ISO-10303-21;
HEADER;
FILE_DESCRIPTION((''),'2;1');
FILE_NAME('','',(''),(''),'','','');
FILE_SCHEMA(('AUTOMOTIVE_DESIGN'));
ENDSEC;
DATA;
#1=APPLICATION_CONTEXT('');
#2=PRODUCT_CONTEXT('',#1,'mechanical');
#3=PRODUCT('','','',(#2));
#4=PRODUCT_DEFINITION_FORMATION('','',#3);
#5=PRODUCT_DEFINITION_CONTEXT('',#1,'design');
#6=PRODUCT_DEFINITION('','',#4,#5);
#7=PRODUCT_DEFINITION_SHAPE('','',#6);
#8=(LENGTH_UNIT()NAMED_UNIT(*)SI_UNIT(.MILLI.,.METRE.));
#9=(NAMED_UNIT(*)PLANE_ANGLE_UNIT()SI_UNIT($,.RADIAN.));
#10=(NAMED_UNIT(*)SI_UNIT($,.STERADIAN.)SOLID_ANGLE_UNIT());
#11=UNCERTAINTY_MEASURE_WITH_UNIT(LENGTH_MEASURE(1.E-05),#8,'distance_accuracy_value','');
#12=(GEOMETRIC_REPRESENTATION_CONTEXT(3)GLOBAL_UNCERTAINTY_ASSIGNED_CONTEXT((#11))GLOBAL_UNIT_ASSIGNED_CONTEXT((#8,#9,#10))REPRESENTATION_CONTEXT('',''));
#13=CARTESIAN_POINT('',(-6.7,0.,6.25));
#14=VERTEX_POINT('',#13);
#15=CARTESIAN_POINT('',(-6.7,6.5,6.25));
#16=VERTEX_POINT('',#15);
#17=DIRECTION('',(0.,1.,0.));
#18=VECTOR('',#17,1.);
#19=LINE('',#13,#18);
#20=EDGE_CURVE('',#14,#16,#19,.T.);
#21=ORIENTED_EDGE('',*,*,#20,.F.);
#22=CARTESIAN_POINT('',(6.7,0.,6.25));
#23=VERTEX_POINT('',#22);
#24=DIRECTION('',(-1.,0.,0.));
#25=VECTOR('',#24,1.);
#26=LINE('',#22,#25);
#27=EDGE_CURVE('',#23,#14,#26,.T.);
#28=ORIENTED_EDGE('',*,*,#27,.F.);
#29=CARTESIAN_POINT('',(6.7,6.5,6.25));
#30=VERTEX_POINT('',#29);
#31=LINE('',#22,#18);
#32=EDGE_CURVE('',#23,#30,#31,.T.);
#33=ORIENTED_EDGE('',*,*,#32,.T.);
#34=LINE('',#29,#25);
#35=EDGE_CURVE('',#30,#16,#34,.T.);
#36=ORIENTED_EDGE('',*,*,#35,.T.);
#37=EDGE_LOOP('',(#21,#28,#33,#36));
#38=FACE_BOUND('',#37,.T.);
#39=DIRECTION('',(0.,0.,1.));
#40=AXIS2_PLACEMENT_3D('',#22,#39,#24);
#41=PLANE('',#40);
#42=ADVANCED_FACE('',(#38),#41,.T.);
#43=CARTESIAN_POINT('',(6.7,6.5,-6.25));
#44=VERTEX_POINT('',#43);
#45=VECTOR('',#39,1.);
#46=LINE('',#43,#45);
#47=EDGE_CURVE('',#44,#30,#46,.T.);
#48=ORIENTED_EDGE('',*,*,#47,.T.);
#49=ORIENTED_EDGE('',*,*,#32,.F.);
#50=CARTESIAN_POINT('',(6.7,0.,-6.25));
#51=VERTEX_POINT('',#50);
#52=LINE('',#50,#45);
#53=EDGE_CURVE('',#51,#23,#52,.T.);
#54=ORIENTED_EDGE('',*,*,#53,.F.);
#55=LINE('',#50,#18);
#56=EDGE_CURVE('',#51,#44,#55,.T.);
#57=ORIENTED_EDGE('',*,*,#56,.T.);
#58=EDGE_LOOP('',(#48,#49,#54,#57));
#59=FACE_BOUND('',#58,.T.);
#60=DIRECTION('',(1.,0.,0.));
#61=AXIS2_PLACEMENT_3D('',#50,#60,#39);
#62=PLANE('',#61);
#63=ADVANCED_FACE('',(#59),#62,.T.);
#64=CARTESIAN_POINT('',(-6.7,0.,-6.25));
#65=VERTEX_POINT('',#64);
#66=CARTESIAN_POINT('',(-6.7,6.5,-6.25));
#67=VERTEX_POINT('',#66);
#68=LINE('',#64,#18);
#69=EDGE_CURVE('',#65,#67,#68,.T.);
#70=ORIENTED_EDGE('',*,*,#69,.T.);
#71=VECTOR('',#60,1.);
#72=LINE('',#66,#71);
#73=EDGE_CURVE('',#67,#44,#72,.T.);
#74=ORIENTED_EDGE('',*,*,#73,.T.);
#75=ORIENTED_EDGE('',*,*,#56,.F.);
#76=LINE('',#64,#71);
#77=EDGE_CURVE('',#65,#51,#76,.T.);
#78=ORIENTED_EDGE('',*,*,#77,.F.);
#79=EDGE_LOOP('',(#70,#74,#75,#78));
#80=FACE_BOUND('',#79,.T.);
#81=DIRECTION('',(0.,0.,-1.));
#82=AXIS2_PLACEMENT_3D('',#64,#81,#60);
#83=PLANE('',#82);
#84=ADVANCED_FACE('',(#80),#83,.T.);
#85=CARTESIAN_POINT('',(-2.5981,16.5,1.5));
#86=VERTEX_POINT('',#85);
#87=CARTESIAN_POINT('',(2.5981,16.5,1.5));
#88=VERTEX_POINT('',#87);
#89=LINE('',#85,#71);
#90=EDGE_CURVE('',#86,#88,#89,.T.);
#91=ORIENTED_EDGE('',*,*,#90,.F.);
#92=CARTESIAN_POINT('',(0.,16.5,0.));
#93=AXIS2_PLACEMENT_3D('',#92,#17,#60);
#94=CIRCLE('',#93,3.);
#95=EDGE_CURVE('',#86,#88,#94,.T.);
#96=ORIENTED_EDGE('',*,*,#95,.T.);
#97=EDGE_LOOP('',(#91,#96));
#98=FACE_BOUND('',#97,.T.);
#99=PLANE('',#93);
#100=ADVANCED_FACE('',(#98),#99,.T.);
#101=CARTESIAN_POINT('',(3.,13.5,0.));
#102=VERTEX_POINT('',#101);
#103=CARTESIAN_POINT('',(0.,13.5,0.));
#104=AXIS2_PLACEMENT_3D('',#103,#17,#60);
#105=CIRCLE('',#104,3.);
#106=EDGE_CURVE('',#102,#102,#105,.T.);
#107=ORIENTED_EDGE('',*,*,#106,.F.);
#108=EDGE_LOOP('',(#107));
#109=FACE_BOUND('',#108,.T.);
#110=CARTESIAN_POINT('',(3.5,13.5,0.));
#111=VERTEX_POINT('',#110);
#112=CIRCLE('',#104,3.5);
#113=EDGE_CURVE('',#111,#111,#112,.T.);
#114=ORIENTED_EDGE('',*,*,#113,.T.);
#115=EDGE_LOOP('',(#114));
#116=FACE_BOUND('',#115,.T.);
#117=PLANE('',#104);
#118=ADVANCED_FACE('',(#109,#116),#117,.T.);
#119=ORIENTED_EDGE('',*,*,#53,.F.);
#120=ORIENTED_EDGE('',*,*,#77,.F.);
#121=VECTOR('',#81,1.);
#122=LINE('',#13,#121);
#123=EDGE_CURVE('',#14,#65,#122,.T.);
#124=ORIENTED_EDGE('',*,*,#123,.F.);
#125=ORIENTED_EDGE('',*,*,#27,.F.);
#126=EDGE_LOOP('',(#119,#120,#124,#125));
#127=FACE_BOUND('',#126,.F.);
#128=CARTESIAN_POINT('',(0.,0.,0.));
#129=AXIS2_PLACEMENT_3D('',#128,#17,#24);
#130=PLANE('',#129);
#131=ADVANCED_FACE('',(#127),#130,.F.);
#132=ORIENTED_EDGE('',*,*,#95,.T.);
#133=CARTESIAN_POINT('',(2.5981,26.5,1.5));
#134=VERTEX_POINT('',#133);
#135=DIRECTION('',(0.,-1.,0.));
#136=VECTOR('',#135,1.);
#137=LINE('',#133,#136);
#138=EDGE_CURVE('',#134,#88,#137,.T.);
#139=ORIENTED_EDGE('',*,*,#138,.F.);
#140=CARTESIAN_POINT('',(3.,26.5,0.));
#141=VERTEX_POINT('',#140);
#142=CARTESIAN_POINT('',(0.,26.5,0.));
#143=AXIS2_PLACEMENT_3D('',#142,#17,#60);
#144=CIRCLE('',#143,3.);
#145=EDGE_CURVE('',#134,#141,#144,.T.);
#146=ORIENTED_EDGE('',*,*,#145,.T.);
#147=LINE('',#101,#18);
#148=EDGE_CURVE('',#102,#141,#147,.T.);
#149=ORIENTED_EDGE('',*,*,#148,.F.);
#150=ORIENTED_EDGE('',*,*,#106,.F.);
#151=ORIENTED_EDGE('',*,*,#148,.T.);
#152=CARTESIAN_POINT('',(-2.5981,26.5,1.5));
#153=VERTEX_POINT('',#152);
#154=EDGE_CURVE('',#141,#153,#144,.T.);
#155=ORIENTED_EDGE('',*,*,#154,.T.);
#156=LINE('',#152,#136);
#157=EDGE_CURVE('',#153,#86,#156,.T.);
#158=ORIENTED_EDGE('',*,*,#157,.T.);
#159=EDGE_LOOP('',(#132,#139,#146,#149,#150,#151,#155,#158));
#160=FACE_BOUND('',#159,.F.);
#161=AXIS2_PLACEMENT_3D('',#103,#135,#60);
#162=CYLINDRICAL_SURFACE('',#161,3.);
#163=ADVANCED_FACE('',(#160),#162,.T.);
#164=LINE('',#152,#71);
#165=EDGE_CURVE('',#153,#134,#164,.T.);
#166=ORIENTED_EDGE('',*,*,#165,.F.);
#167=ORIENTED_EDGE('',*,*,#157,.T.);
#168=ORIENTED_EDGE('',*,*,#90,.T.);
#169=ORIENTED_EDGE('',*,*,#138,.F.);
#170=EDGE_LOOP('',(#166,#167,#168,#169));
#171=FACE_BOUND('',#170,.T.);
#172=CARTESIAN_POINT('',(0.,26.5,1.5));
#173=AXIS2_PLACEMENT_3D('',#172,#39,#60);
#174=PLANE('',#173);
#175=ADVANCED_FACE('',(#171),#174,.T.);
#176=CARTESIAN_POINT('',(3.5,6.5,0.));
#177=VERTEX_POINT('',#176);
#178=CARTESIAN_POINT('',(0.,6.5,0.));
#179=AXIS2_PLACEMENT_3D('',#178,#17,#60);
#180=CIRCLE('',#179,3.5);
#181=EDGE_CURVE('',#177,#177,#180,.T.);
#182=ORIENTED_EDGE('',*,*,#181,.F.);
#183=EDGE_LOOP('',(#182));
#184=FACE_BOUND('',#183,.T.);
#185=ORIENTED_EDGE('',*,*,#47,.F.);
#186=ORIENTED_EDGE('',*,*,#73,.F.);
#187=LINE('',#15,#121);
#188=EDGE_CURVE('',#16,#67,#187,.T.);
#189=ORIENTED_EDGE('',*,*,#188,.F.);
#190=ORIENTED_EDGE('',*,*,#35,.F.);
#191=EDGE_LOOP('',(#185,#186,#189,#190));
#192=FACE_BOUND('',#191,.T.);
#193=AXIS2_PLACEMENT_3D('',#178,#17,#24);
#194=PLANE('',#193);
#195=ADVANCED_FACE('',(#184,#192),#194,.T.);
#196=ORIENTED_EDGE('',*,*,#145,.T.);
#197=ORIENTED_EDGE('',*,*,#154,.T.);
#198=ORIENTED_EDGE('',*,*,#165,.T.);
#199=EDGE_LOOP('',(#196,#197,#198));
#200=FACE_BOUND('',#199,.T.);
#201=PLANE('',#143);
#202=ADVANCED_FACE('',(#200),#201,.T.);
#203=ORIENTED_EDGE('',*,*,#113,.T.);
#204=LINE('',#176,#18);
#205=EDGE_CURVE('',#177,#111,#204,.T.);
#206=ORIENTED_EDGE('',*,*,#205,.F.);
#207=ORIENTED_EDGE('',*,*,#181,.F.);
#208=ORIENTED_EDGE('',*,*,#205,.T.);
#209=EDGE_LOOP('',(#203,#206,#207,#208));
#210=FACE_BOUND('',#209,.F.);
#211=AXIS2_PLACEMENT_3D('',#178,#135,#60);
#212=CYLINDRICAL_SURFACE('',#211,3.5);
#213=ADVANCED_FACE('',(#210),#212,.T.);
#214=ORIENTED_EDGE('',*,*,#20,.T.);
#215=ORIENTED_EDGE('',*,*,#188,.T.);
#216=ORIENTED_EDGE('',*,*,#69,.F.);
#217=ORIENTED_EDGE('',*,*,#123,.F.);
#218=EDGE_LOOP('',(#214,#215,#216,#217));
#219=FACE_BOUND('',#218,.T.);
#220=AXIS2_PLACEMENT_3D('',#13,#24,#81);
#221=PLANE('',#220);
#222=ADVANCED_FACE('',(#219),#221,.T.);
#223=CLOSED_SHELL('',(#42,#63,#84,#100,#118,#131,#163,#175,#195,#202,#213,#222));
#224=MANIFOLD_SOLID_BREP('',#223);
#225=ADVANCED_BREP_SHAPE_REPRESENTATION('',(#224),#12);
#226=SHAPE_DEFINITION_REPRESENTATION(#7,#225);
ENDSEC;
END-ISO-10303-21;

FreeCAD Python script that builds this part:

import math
import FreeCAD as App
import Part
import Sketcher
from FreeCAD import Vector
Q = App.Units.Quantity

doc = App.newDocument("Part")
body = doc.addObject("PartDesign::Body", "Body")

sketch1 = doc.addObject("Sketcher::SketchObject", "Sketch")
body.addObject(sketch1)
sketch1.AttachmentSupport = (doc.XZ_Plane, [""])
sketch1.MapMode = "FlatFace"
sketch1.addGeometry(Part.LineSegment(Vector(-7, 6, 0), Vector(7, 6, 0)), False)
sketch1.addGeometry(Part.LineSegment(Vector(7, 6, 0), Vector(7, -6, 0)), False)
sketch1.addGeometry(Part.LineSegment(Vector(7, -6, 0), Vector(-7, -6, 0)), False)
sketch1.addGeometry(Part.LineSegment(Vector(-7, -6, 0), Vector(-7, 6, 0)), False)
sketch1.addConstraint(Sketcher.Constraint("Coincident", 0, 2, 1, 1))
sketch1.addConstraint(Sketcher.Constraint("Coincident", 1, 2, 2, 1))
sketch1.addConstraint(Sketcher.Constraint("Coincident", 2, 2, 3, 1))
sketch1.addConstraint(Sketcher.Constraint("Coincident", 3, 2, 0, 1))
sketch1.addConstraint(Sketcher.Constraint("Horizontal", 0))
sketch1.addConstraint(Sketcher.Constraint("Vertical", 1))
sketch1.addConstraint(Sketcher.Constraint("Horizontal", 2))
sketch1.addConstraint(Sketcher.Constraint("Vertical", 3))
sketch1.addConstraint(Sketcher.Constraint("Symmetric", 0, 2, 2, 2, -1, 1))
sketch1.addConstraint(Sketcher.Constraint("DistanceX", 0, 1, 0, 2, Q("13.4 mm")))
sketch1.addConstraint(Sketcher.Constraint("DistanceY", 1, 2, 1, 1, Q("12.5 mm")))
pad1 = doc.addObject("PartDesign::Pad", "Pad")
body.addObject(pad1)
pad1.Profile = sketch1
pad1.Length = 6.5
pad1.Reversed = True

sketch2 = doc.addObject("Sketcher::SketchObject", "Sketch001")
body.addObject(sketch2)
sketch2.AttachmentSupport = (doc.XZ_Plane, [""])
sketch2.MapMode = "FlatFace"
sketch2.AttachmentOffset = App.Placement(Vector(0, 0, -6.5), App.Rotation())
sketch2.addGeometry(Part.Circle(Vector(0, 0, 0), Vector(0, 0, 1), 3.5), False)
sketch2.addConstraint(Sketcher.Constraint("Coincident", 0, 3, -1, 1))
sketch2.addConstraint(Sketcher.Constraint("Diameter", 0, Q("7 mm")))
pad2 = doc.addObject("PartDesign::Pad", "Pad001")
body.addObject(pad2)
pad2.Profile = sketch2
pad2.Length = 7
pad2.Reversed = True

sketch3 = doc.addObject("Sketcher::SketchObject", "Sketch002")
body.addObject(sketch3)
sketch3.AttachmentSupport = (doc.XZ_Plane, [""])
sketch3.MapMode = "FlatFace"
sketch3.AttachmentOffset = App.Placement(Vector(0, 0, -13.5), App.Rotation())
sketch3.addGeometry(Part.Circle(Vector(0, 0, 0), Vector(0, 0, 1), 3), False)
sketch3.addConstraint(Sketcher.Constraint("Coincident", 0, 3, -1, 1))
sketch3.addConstraint(Sketcher.Constraint("Diameter", 0, Q("6 mm")))
pad3 = doc.addObject("PartDesign::Pad", "Pad002")
body.addObject(pad3)
pad3.Profile = sketch3
pad3.Length = 13
pad3.Reversed = True

sketch4 = doc.addObject("Sketcher::SketchObject", "Sketch003")
body.addObject(sketch4)
sketch4.AttachmentSupport = (doc.XZ_Plane, [""])
sketch4.MapMode = "FlatFace"
sketch4.AttachmentOffset = App.Placement(Vector(0, 0, -26.5), App.Rotation())
sketch4.addGeometry(Part.LineSegment(Vector(2.6, 1.5, 0), Vector(-2.6, 1.5, 0)), False)
sketch4.addGeometry(Part.ArcOfCircle(Part.Circle(Vector(0, 0, 0), Vector(0, 0, 1), 3), math.radians(30), math.radians(150)), False)
sketch4.addConstraint(Sketcher.Constraint("Coincident", 0, 1, 1, 1))
sketch4.addConstraint(Sketcher.Constraint("Coincident", 1, 2, 0, 2))
sketch4.addConstraint(Sketcher.Constraint("Horizontal", 0))
sketch4.addConstraint(Sketcher.Constraint("Coincident", 1, 3, -1, 1))
sketch4.addConstraint(Sketcher.Constraint("Radius", 1, Q("3 mm")))
sketch4.addConstraint(Sketcher.Constraint("DistanceY", -1, 1, 0, 1, Q("1.5 mm")))
pocket1 = doc.addObject("PartDesign::Pocket", "Pocket")
body.addObject(pocket1)
pocket1.Profile = sketch4
pocket1.Length = 10
pocket1.Reversed = True

doc.recompute()
